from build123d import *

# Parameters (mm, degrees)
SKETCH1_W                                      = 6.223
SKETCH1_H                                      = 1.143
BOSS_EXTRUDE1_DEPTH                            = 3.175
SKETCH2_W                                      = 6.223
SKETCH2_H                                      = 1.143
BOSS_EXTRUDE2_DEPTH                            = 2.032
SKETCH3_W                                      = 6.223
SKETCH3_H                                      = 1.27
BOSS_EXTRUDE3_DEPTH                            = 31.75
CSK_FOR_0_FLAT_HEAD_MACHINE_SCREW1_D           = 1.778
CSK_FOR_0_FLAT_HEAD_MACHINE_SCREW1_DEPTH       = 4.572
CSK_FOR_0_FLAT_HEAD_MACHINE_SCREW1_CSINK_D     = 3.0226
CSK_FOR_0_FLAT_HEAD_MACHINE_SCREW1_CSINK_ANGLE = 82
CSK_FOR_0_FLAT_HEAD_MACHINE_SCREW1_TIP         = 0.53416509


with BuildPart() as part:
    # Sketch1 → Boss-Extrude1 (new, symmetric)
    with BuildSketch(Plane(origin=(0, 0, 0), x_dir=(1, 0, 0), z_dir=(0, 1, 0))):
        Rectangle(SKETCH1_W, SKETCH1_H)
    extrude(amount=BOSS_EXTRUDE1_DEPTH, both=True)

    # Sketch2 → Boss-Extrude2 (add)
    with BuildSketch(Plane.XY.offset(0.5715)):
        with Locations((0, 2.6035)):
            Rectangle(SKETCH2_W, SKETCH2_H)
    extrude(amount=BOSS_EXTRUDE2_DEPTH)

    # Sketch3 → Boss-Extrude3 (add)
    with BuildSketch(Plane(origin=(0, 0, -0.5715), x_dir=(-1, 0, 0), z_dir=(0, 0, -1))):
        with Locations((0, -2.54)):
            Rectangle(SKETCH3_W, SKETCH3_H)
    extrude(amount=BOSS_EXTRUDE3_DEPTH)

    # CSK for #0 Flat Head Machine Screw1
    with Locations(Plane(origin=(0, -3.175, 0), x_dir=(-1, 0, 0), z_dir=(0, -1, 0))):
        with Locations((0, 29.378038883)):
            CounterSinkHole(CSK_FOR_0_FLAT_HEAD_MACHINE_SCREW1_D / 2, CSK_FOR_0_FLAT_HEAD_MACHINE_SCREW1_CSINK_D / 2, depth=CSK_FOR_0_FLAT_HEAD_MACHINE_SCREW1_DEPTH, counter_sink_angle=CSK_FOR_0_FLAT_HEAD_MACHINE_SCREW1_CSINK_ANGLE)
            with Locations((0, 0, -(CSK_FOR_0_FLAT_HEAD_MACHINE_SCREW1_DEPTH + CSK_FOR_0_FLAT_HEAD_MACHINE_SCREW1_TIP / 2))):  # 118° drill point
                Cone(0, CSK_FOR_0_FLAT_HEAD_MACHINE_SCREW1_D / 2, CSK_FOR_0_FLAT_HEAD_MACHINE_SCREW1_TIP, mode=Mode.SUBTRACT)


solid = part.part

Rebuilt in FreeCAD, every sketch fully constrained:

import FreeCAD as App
import Part
import Sketcher
from FreeCAD import Vector
Q = App.Units.Quantity

doc = App.newDocument("Part")
body = doc.addObject("PartDesign::Body", "Body")

# Sketch on XZ plane
sketch1 = body.newObject("Sketcher::SketchObject", "Sketch")
sketch1.AttachmentSupport = (doc.getObject("XZ_Plane"), [""])
sketch1.MapMode = "FlatFace"
sketch1.addGeometry([
    Part.LineSegment(Vector(-3.1, -0.6, 0), Vector(-3.1, 0.6, 0)),
    Part.LineSegment(Vector(-3.1, 0.6, 0), Vector(3.1, 0.6, 0)),
    Part.LineSegment(Vector(3.1, 0.6, 0), Vector(3.1, -0.6, 0)),
    Part.LineSegment(Vector(3.1, -0.6, 0), Vector(-3.1, -0.6, 0)),
], False)
sketch1.addConstraint([
    Sketcher.Constraint("Coincident", 0, 2, 1, 1),
    Sketcher.Constraint("Coincident", 1, 2, 2, 1),
    Sketcher.Constraint("Coincident", 2, 2, 3, 1),
    Sketcher.Constraint("Coincident", 3, 2, 0, 1),
    Sketcher.Constraint("Vertical", 0),
    Sketcher.Constraint("Horizontal", 1),
    Sketcher.Constraint("Vertical", 2),
    Sketcher.Constraint("Horizontal", 3),
    Sketcher.Constraint("Symmetric", 0, 2, 2, 2, -1, 1),
    Sketcher.Constraint("DistanceX", 1, 1, 1, 2, Q("0.245 in")),
    Sketcher.Constraint("DistanceY", 0, 1, 0, 2, Q("0.045 in")),
])
pad1 = body.newObject("PartDesign::Pad", "Pad")
pad1.Profile = sketch1
pad1.Length = Q("0.25 in")
pad1.Midplane = True

# Sketch on XY plane
sketch2 = body.newObject("Sketcher::SketchObject", "Sketch001")
sketch2.AttachmentSupport = (doc.getObject("XY_Plane"), [""])
sketch2.MapMode = "FlatFace"
sketch2.AttachmentOffset = App.Placement(Vector(0, 0, 0.0225 * 25.4), App.Rotation())
sketch2.addGeometry([
    Part.LineSegment(Vector(-3.1, 3.2, 0), Vector(-3.1, 2, 0)),
    Part.LineSegment(Vector(-3.1, 2, 0), Vector(3.1, 2, 0)),
    Part.LineSegment(Vector(3.1, 2, 0), Vector(3.1, 3.2, 0)),
    Part.LineSegment(Vector(3.1, 3.2, 0), Vector(-3.1, 3.2, 0)),
], False)
sketch2.addConstraint([
    Sketcher.Constraint("Coincident", 0, 2, 1, 1),
    Sketcher.Constraint("Coincident", 1, 2, 2, 1),
    Sketcher.Constraint("Coincident", 2, 2, 3, 1),
    Sketcher.Constraint("Coincident", 3, 2, 0, 1),
    Sketcher.Constraint("Vertical", 0),
    Sketcher.Constraint("Horizontal", 1),
    Sketcher.Constraint("Vertical", 2),
    Sketcher.Constraint("Horizontal", 3),
    Sketcher.Constraint("DistanceX", 1, 1, 1, 2, Q("0.245 in")),
    Sketcher.Constraint("DistanceY", 0, 2, 0, 1, Q("0.045 in")),
    Sketcher.Constraint("DistanceY", -1, 1, 0, 2, Q("0.08 in")),
    Sketcher.Constraint("DistanceX", 0, 2, -1, 1, Q("0.1225 in")),
])
pad2 = body.newObject("PartDesign::Pad", "Pad001")
pad2.Profile = sketch2
pad2.Length = Q("0.08 in")

# Sketch on XY plane
sketch3 = body.newObject("Sketcher::SketchObject", "Sketch002")
sketch3.AttachmentSupport = (doc.getObject("XY_Plane"), [""])
sketch3.MapMode = "FlatFace"
sketch3.AttachmentOffset = App.Placement(Vector(0, 0, -0.0225 * 25.4), App.Rotation())
sketch3.addGeometry([
    Part.LineSegment(Vector(3.1, -1.9, 0), Vector(3.1, -3.2, 0)),
    Part.LineSegment(Vector(3.1, -3.2, 0), Vector(-3.1, -3.2, 0)),
    Part.LineSegment(Vector(-3.1, -3.2, 0), Vector(-3.1, -1.9, 0)),
    Part.LineSegment(Vector(-3.1, -1.9, 0), Vector(3.1, -1.9, 0)),
], False)
sketch3.addConstraint([
    Sketcher.Constraint("Coincident", 0, 2, 1, 1),
    Sketcher.Constraint("Coincident", 1, 2, 2, 1),
    Sketcher.Constraint("Coincident", 2, 2, 3, 1),
    Sketcher.Constraint("Coincident", 3, 2, 0, 1),
    Sketcher.Constraint("Vertical", 0),
    Sketcher.Constraint("Horizontal", 1),
    Sketcher.Constraint("Vertical", 2),
    Sketcher.Constraint("Horizontal", 3),
    Sketcher.Constraint("DistanceY", 0, 2, 0, 1, Q("0.05 in")),
    Sketcher.Constraint("DistanceX", 1, 2, 1, 1, Q("0.245 in")),
    Sketcher.Constraint("DistanceY", 0, 2, -1, 1, Q("0.125 in")),
    Sketcher.Constraint("DistanceX", -1, 1, 0, 2, Q("0.1225 in")),
])
pad3 = body.newObject("PartDesign::Pad", "Pad002")
pad3.Profile = sketch3
pad3.Length = Q("1.25 in")
pad3.Reversed = True

# Sketch on XZ plane
sketch4 = body.newObject("Sketcher::SketchObject", "Sketch003")
sketch4.AttachmentSupport = (doc.getObject("XZ_Plane"), [""])
sketch4.MapMode = "FlatFace"
sketch4.AttachmentOffset = App.Placement(Vector(0, 0, 0.125 * 25.4), App.Rotation())
sketch4.addGeometry(Part.Circle(Vector(0, -29.4, 0), Vector(0, 0, 1), 0.9), False)
sketch4.addConstraint([
    Sketcher.Constraint("PointOnObject", 0, 3, -2),
    Sketcher.Constraint("Diameter", 0, Q("0.07 in")),
    Sketcher.Constraint("DistanceY", 0, 3, -1, 1, 29.378039),
])
doc.recompute()
hole = body.newObject("PartDesign::Hole", "Hole")
hole.Profile = sketch4
hole.ThreadType = "None"
hole.Diameter = Q("0.07 in")
hole.DepthType = "Dimension"
hole.Depth = Q("0.18 in")
hole.DrillPoint = "Angled"
hole.DrillPointAngle = 118
hole.HoleCutType = "Countersink"
hole.HoleCutDiameter = Q("0.119 in")
hole.HoleCutCountersinkAngle = 82

doc.recompute()
